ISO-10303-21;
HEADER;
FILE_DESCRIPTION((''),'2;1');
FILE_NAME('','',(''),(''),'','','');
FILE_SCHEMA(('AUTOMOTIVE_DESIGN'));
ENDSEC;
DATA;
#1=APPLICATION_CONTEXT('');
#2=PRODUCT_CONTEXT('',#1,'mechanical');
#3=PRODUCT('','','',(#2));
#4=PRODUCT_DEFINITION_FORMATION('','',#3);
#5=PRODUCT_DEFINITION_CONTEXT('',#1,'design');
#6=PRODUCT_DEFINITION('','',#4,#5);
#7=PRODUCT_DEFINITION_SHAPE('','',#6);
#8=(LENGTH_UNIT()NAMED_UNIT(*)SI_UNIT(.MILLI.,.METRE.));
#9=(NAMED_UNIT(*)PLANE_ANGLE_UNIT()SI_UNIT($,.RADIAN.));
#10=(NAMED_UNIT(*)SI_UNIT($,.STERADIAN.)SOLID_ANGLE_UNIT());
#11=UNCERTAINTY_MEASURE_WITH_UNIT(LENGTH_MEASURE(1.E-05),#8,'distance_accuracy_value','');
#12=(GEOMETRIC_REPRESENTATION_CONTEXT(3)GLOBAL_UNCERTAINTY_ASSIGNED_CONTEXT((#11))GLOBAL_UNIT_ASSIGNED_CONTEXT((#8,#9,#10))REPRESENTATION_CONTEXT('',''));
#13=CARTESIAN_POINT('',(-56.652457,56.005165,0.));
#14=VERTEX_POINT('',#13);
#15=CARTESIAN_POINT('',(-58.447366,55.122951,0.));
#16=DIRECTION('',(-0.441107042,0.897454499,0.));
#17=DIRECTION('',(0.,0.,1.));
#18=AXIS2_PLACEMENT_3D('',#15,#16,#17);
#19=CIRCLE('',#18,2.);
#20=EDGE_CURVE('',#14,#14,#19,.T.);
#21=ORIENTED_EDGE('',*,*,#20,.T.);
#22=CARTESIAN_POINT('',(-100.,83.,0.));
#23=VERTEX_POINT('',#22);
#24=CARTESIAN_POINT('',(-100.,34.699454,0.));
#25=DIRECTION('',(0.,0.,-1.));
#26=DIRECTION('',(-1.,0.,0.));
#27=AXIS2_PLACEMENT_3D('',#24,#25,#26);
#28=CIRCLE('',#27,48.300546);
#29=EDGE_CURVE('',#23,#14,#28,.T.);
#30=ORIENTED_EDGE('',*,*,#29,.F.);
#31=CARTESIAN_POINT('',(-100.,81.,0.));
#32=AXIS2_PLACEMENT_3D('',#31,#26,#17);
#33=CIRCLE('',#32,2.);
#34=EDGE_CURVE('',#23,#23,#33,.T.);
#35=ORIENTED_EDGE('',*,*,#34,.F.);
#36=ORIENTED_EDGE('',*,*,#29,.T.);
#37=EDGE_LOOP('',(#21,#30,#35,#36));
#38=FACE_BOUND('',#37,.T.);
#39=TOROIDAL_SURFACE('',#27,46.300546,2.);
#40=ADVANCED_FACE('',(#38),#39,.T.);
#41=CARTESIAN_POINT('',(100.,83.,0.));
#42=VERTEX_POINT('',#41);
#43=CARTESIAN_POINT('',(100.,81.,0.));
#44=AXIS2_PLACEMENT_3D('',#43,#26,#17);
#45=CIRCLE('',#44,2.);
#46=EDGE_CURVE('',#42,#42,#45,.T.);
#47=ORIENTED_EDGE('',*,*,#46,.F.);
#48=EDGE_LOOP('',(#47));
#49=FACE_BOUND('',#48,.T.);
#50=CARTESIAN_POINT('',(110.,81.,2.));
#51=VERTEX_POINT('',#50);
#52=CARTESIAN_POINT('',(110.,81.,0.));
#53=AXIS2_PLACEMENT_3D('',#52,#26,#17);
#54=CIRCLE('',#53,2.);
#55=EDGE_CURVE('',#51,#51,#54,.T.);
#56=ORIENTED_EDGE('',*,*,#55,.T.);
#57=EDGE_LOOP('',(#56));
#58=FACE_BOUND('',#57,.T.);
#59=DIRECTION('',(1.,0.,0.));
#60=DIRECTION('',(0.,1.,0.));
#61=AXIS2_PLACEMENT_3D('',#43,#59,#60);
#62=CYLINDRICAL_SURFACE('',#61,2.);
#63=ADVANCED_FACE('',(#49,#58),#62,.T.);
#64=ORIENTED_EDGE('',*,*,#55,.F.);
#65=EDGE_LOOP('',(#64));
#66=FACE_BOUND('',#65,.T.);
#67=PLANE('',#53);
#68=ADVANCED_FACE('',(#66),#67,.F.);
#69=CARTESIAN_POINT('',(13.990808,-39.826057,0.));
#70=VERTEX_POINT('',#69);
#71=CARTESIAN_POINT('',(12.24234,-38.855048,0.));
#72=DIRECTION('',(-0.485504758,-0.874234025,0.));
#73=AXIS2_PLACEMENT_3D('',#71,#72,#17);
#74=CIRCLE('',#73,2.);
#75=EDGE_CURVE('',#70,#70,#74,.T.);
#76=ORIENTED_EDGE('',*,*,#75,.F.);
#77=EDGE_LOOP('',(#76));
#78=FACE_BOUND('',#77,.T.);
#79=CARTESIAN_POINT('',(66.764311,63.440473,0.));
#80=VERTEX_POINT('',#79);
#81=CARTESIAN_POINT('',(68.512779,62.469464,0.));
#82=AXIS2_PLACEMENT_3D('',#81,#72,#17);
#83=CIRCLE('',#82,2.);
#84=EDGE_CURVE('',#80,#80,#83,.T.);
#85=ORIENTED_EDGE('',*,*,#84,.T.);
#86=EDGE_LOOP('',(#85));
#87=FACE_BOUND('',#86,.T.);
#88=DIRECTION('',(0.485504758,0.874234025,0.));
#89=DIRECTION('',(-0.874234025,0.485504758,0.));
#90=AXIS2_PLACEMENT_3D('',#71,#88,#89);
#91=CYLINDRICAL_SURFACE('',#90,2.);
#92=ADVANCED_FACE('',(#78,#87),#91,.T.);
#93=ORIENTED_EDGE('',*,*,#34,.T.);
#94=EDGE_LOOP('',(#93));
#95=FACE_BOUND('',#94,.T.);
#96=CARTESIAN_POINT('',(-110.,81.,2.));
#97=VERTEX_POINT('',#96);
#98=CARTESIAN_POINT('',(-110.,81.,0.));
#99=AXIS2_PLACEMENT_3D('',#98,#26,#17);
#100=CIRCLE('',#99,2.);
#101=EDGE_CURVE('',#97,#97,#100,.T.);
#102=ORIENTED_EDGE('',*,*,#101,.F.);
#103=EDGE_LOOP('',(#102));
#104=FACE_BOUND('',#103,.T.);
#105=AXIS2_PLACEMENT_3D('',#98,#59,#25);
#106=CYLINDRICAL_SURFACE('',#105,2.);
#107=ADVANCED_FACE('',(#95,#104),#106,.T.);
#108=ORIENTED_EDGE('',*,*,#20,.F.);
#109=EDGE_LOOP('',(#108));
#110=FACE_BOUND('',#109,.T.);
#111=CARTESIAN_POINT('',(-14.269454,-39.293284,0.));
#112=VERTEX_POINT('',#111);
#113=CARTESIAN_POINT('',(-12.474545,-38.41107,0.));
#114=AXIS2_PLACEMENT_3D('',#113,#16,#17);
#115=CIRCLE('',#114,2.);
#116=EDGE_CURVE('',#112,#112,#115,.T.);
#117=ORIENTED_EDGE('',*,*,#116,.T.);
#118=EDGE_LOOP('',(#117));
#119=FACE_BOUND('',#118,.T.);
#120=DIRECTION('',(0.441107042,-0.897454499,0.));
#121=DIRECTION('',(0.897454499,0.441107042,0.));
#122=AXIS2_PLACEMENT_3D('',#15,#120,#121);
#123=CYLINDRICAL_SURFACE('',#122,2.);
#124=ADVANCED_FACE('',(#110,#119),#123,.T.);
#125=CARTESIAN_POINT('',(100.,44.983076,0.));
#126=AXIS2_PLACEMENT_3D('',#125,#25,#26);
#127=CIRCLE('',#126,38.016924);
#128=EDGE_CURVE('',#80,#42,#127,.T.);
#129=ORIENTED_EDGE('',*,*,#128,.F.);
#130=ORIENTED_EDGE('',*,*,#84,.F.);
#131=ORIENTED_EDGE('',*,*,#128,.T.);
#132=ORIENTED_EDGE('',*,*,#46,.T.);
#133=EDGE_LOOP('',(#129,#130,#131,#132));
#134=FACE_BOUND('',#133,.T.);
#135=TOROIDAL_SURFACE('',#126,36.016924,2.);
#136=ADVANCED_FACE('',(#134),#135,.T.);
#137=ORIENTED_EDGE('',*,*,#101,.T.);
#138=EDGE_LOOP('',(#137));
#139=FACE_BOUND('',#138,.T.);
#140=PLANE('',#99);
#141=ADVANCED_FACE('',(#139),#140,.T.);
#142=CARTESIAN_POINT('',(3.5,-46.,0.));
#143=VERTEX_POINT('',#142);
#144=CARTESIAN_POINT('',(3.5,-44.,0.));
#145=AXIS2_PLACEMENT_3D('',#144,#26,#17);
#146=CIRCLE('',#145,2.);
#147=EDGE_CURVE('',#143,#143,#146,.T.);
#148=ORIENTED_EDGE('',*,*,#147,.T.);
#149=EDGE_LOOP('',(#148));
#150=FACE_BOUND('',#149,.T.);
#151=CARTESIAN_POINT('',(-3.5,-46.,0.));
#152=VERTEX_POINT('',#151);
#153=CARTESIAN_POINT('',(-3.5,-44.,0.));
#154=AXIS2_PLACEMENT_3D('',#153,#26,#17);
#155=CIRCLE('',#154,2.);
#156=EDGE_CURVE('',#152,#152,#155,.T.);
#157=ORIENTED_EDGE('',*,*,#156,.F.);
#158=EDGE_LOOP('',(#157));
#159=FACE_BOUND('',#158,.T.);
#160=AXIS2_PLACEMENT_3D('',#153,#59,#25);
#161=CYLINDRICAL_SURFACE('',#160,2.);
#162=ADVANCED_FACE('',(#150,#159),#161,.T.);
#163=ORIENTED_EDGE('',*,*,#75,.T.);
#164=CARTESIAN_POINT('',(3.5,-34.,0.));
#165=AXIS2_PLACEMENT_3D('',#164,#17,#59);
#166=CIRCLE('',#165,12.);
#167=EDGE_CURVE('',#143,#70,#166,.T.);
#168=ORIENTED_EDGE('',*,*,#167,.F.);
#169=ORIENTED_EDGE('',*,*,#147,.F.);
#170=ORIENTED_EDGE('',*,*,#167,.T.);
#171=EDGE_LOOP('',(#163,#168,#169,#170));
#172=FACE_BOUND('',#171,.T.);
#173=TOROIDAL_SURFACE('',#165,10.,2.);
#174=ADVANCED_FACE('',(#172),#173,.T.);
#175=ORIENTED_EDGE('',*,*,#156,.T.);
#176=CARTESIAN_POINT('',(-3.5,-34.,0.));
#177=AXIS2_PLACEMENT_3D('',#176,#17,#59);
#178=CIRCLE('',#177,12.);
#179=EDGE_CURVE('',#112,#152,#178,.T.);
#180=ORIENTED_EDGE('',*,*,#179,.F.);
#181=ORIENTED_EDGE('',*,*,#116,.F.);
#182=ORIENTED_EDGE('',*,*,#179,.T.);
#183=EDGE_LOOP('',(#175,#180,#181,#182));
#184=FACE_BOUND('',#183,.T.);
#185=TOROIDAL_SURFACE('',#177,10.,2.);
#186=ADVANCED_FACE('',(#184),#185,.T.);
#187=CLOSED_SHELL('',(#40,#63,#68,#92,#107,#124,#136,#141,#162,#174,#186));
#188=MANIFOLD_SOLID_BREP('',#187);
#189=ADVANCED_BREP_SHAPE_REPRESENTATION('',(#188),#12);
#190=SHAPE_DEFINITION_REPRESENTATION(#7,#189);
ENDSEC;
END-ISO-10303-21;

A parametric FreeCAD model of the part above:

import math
import FreeCAD as App
import Part
import Sketcher
from FreeCAD import Vector

doc = App.newDocument("Part")
body = doc.addObject("PartDesign::Body", "Body")

# Sketch on YZ plane
sketch1 = doc.addObject("Sketcher::SketchObject", "Sketch")
body.addObject(sketch1)
sketch1.AttachmentSupport = (doc.YZ_Plane, [""])
sketch1.MapMode = "FlatFace"
sketch1.AttachmentOffset = App.Placement(Vector(0, 0, -110), App.Rotation())
sketch1.addGeometry(Part.Circle(Vector(81, 0, 0), Vector(0, 0, 1), 2), False)
sketch1.addConstraint(Sketcher.Constraint("PointOnObject", 0, 3, -1))
sketch1.addConstraint(Sketcher.Constraint("Diameter", 0, 4.0))
sketch1.addConstraint(Sketcher.Constraint("DistanceX", -1, 1, 0, 3, 81.0))

# Sketch on XY plane
sketch2 = doc.addObject("Sketcher::SketchObject", "Sketch001")
body.addObject(sketch2)
sketch2.AttachmentSupport = (doc.XY_Plane, [""])
sketch2.MapMode = "FlatFace"
sketch2.addGeometry(Part.LineSegment(Vector(-110, 81, 0), Vector(-100, 81, 0)), False)
sketch2.addGeometry(Part.ArcOfCircle(Part.Circle(Vector(-100, 35, 0), Vector(0, 0, 1), 46), math.radians(26), math.radians(90)), False)
sketch2.addGeometry(Part.LineSegment(Vector(-58, 55, 0), Vector(-12, -38, 0)), False)
sketch2.addGeometry(Part.ArcOfCircle(Part.Circle(Vector(-4, -34, 0), Vector(0, 0, 1), 10), math.radians(-154), math.radians(-90)), False)
sketch2.addGeometry(Part.LineSegment(Vector(-4, -44, 0), Vector(4, -44, 0)), False)
sketch2.addGeometry(Part.ArcOfCircle(Part.Circle(Vector(4, -34, 0), Vector(0, 0, 1), 10), math.radians(-90), math.radians(-29)), False)
sketch2.addGeometry(Part.LineSegment(Vector(12, -39, 0), Vector(69, 62, 0)), False)
sketch2.addGeometry(Part.ArcOfCircle(Part.Circle(Vector(100, 45, 0), Vector(0, 0, 1), 36), math.radians(90), math.radians(151)), False)
sketch2.addGeometry(Part.LineSegment(Vector(100, 81, 0), Vector(110, 81, 0)), False)
sketch2.addConstraint(Sketcher.Constraint("Tangent", 0, 2, 1, 2))
sketch2.addConstraint(Sketcher.Constraint("Tangent", 1, 1, 2, 1))
sketch2.addConstraint(Sketcher.Constraint("Tangent", 2, 2, 3, 1))
sketch2.addConstraint(Sketcher.Constraint("Tangent", 3, 2, 4, 1))
sketch2.addConstraint(Sketcher.Constraint("Tangent", 4, 2, 5, 1))
sketch2.addConstraint(Sketcher.Constraint("Tangent", 5, 2, 6, 1))
sketch2.addConstraint(Sketcher.Constraint("Tangent", 6, 2, 7, 2))
sketch2.addConstraint(Sketcher.Constraint("Tangent", 7, 1, 8, 1))
sketch2.addConstraint(Sketcher.Constraint("Horizontal", 0))
sketch2.addConstraint(Sketcher.Constraint("Horizontal", 4))
sketch2.addConstraint(Sketcher.Constraint("Horizontal", 8))
sketch2.addConstraint(Sketcher.Constraint("Equal", 3, 5))
sketch2.addConstraint(Sketcher.Constraint("Symmetric", 0, 2, 7, 1, -2))
sketch2.addConstraint(Sketcher.Constraint("Equal", 0, 8))
sketch2.addConstraint(Sketcher.Constraint("Radius", 3, 10.0))
sketch2.addConstraint(Sketcher.Constraint("DistanceX", 0, 1, 0, 2, 10.0))
sketch2.addConstraint(Sketcher.Constraint("DistanceX", 4, 1, 4, 2, 7.0))
sketch2.addConstraint(Sketcher.Constraint("DistanceX", 1, 3, -1, 1, 100.0))
sketch2.addConstraint(Sketcher.Constraint("DistanceY", 3, 3, -1, 1, 34.0))
sketch2.addConstraint(Sketcher.Constraint("DistanceY", -1, 1, 0, 1, 81.0))
sketch2.addConstraint(Sketcher.Constraint("DistanceX", 3, 3, -1, 1, 3.5))
sketch2.addConstraint(Sketcher.Constraint("Radius", 1, 46.300546))
sketch2.addConstraint(Sketcher.Constraint("Radius", 7, 36.016924))
doc.recompute()

additivepipe = doc.addObject("PartDesign::AdditivePipe", "AdditivePipe")
body.addObject(additivepipe)
additivepipe.Profile = sketch1
additivepipe.Spine = (sketch2, ["Edge1", "Edge2", "Edge3", "Edge4", "Edge5", "Edge6", "Edge7", "Edge8", "Edge9"])

doc.recompute()
